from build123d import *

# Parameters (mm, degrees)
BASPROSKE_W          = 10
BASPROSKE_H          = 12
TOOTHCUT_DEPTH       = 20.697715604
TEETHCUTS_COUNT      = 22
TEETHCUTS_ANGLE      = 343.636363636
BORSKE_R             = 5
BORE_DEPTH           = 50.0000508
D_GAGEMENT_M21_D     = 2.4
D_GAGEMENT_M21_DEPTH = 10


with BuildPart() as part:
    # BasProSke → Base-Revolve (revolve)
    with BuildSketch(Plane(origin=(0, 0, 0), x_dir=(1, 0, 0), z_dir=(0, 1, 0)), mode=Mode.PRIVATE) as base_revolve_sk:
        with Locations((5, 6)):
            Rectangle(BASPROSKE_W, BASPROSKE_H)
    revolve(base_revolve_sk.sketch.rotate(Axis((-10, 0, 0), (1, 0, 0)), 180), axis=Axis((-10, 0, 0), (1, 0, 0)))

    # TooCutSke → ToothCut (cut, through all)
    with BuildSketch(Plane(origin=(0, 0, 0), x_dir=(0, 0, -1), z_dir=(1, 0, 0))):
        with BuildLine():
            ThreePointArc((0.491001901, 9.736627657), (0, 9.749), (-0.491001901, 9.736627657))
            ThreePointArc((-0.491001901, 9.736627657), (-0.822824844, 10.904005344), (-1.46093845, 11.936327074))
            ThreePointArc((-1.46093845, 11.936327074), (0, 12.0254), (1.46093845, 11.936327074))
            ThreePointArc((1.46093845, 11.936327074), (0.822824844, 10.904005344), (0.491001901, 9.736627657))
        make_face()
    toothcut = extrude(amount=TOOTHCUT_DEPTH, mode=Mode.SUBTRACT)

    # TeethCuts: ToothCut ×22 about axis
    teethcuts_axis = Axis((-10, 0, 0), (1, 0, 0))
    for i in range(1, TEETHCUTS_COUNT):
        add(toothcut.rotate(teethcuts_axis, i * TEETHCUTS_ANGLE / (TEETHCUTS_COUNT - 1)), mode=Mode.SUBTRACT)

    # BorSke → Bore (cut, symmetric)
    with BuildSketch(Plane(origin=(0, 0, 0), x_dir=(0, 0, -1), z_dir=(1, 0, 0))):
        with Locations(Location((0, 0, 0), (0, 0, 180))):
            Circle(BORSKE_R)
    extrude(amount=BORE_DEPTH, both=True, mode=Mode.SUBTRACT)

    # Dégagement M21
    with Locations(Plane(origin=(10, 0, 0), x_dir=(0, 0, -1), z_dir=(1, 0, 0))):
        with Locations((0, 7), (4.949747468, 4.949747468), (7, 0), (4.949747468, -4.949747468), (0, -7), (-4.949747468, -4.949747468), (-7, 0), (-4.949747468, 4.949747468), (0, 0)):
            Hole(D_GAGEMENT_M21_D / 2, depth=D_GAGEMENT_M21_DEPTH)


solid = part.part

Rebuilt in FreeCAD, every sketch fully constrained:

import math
import FreeCAD as App
import Part
import Sketcher
from FreeCAD import Vector
Q = App.Units.Quantity

doc = App.newDocument("Part")
params = doc.addObject("Spreadsheet::Sheet", "Params")
for row, (alias, value) in enumerate([
    ("sketch1_width", "10 mm"),
    ("sketch1_height", "12 mm"),
    ("revolution_angle", "360 deg"),
    ("sketch2_radius", "4.4 mm"),
    ("sketch3_diameter", "10 mm"),
    ("pocket2_length", "100.000102 mm"),
    ("sketch4_diameter", "2.4 mm"),
    ("hole_diameter", "2.4 mm"),
    ("hole_depth", "10 mm"),
], start=1):
    params.set(f"A{row}", alias)
    params.set(f"B{row}", "=" + value)
    params.setAlias(f"B{row}", alias)

body = doc.addObject("PartDesign::Body", "Body")

sketch1 = body.newObject("Sketcher::SketchObject", "Sketch")
sketch1.AttachmentSupport = (doc.getObject("XZ_Plane"), [""])
sketch1.MapMode = "FlatFace"
sketch1.addGeometry(Part.LineSegment(Vector(0, -12, 0), Vector(0, 0, 0)), False)
sketch1.addGeometry(Part.LineSegment(Vector(0, 0, 0), Vector(10, 0, 0)), False)
sketch1.addGeometry(Part.LineSegment(Vector(10, 0, 0), Vector(10, -12, 0)), False)
sketch1.addGeometry(Part.LineSegment(Vector(10, -12, 0), Vector(0, -12, 0)), False)
sketch1.addConstraint(Sketcher.Constraint("Coincident", 0, 2, 1, 1))
sketch1.addConstraint(Sketcher.Constraint("Coincident", 1, 2, 2, 1))
sketch1.addConstraint(Sketcher.Constraint("Coincident", 2, 2, 3, 1))
sketch1.addConstraint(Sketcher.Constraint("Coincident", 3, 2, 0, 1))
sketch1.addConstraint(Sketcher.Constraint("Vertical", 0))
sketch1.addConstraint(Sketcher.Constraint("Horizontal", 1))
sketch1.addConstraint(Sketcher.Constraint("Vertical", 2))
sketch1.addConstraint(Sketcher.Constraint("Horizontal", 3))
sketch1.addConstraint(Sketcher.Constraint("Coincident", 0, 2, -1, 1))
sketch1.addConstraint(Sketcher.Constraint("DistanceX", 1, 1, 1, 2, Q("10 mm")))
sketch1.addConstraint(Sketcher.Constraint("DistanceY", 0, 1, 0, 2, Q("12 mm")))
sketch1.setExpression("Constraints[9]", "Params.sketch1_width")
sketch1.setExpression("Constraints[10]", "Params.sketch1_height")
revolution = body.newObject("PartDesign::Revolution", "Revolution")
revolution.Profile = sketch1
revolution.ReferenceAxis = (sketch1, ["H_Axis"])
revolution.setExpression("Angle", "Params.revolution_angle")

sketch2 = body.newObject("Sketcher::SketchObject", "Sketch001")
sketch2.AttachmentSupport = (doc.getObject("YZ_Plane"), [""])
sketch2.MapMode = "FlatFace"
sketch2.addGeometry(Part.ArcOfCircle(Part.Circle(Vector(0, 0, 0), Vector(0, 0, 1), 9.749), math.radians(-2.886885), math.radians(2.886885)), False)
sketch2.addGeometry(Part.ArcOfCircle(Part.Circle(Vector(9.128784, -4.848814, 0), Vector(0, 0, 1), 4.4), math.radians(50.351348), math.radians(82.059402)), False)
sketch2.addGeometry(Part.ArcOfCircle(Part.Circle(Vector(0, 0, 0), Vector(0, 0, 1), 12.0254), math.radians(-6.977971), math.radians(6.977971)), False)
sketch2.addGeometry(Part.ArcOfCircle(Part.Circle(Vector(9.128784, 4.848814, 0), Vector(0, 0, 1), 4.4), math.radians(-82.059402), math.radians(-50.351348)), False)
sketch2.addConstraint(Sketcher.Constraint("Coincident", 0, 1, 1, 2))
sketch2.addConstraint(Sketcher.Constraint("Coincident", 1, 1, 2, 1))
sketch2.addConstraint(Sketcher.Constraint("Coincident", 2, 2, 3, 2))
sketch2.addConstraint(Sketcher.Constraint("Coincident", 3, 1, 0, 2))
sketch2.addConstraint(Sketcher.Constraint("Coincident", 0, 3, -1, 1))
sketch2.addConstraint(Sketcher.Constraint("Coincident", 2, 3, -1, 1))
sketch2.addConstraint(Sketcher.Constraint("Equal", 1, 3))
sketch2.addConstraint(Sketcher.Constraint("Symmetric", 1, 3, 3, 3, -1))
sketch2.addConstraint(Sketcher.Constraint("Radius", 1, Q("4.4 mm")))
sketch2.addConstraint(Sketcher.Constraint("Radius", 0, Q("9.749 mm")))
sketch2.addConstraint(Sketcher.Constraint("Radius", 2, Q("12.0254 mm")))
sketch2.addConstraint(Sketcher.Constraint("DistanceY", 0, 1, -1, 1, Q("0.491002 mm")))
sketch2.addConstraint(Sketcher.Constraint("DistanceX", 0, 1, 1, 1, Q("2.199699 mm")))
sketch2.setExpression("Constraints[8]", "Params.sketch2_radius")
pocket1 = body.newObject("PartDesign::Pocket", "Pocket")
pocket1.Profile = sketch2
pocket1.Type = "ThroughAll"
pocket1.Reversed = True
doc.recompute()

polarpattern = body.newObject("PartDesign::PolarPattern", "PolarPattern")
polarpattern.Originals = [pocket1]
polarpattern.Axis = (doc.getObject("X_Axis"), [""])
polarpattern.Angle = 360
polarpattern.Occurrences = 22
body.Tip = polarpattern

sketch3 = body.newObject("Sketcher::SketchObject", "Sketch002")
sketch3.AttachmentSupport = (doc.getObject("YZ_Plane"), [""])
sketch3.MapMode = "FlatFace"
sketch3.addGeometry(Part.Circle(Vector(0, 0, 0), Vector(0, 0, 1), 5), False)
sketch3.addConstraint(Sketcher.Constraint("Coincident", 0, 3, -1, 1))
sketch3.addConstraint(Sketcher.Constraint("Diameter", 0, Q("10 mm")))
sketch3.setExpression("Constraints[1]", "Params.sketch3_diameter")
pocket2 = body.newObject("PartDesign::Pocket", "Pocket001")
pocket2.Profile = sketch3
pocket2.setExpression("Length", "Params.pocket2_length")
pocket2.Midplane = True

sketch4 = body.newObject("Sketcher::SketchObject", "Sketch003")
sketch4.AttachmentSupport = (doc.getObject("YZ_Plane"), [""])
sketch4.MapMode = "FlatFace"
sketch4.AttachmentOffset = App.Placement(Vector(0, 0, 10), App.Rotation())
sketch4.addGeometry(Part.Circle(Vector(7, 0, 0), Vector(0, 0, 1), 1.2), False)
sketch4.addGeometry(Part.Circle(Vector(4.949747, -4.949747, 0), Vector(0, 0, 1), 1.2), False)
sketch4.addGeometry(Part.Circle(Vector(0, -7, 0), Vector(0, 0, 1), 1.2), False)
sketch4.addGeometry(Part.Circle(Vector(-4.949747, -4.949747, 0), Vector(0, 0, 1), 1.2), False)
sketch4.addGeometry(Part.Circle(Vector(-7, 0, 0), Vector(0, 0, 1), 1.2), False)
sketch4.addGeometry(Part.Circle(Vector(-4.949747, 4.949747, 0), Vector(0, 0, 1), 1.2), False)
sketch4.addGeometry(Part.Circle(Vector(0, 7, 0), Vector(0, 0, 1), 1.2), False)
sketch4.addGeometry(Part.Circle(Vector(4.949747, 4.949747, 0), Vector(0, 0, 1), 1.2), False)
sketch4.addGeometry(Part.Circle(Vector(0, 0, 0), Vector(0, 0, 1), 1.2), False)
sketch4.addConstraint(Sketcher.Constraint("Coincident", 8, 3, -1, 1))
sketch4.addConstraint(Sketcher.Constraint("Equal", 0, 1))
sketch4.addConstraint(Sketcher.Constraint("Equal", 1, 2))
sketch4.addConstraint(Sketcher.Constraint("Equal", 2, 3))
sketch4.addConstraint(Sketcher.Constraint("Equal", 3, 4))
sketch4.addConstraint(Sketcher.Constraint("Equal", 4, 5))
sketch4.addConstraint(Sketcher.Constraint("Equal", 5, 6))
sketch4.addConstraint(Sketcher.Constraint("Equal", 6, 7))
sketch4.addConstraint(Sketcher.Constraint("Equal", 7, 8))
sketch4.addConstraint(Sketcher.Constraint("Symmetric", 0, 3, 4, 3, -1, 1))
sketch4.addConstraint(Sketcher.Constraint("Symmetric", 1, 3, 5, 3, -1, 1))
sketch4.addConstraint(Sketcher.Constraint("Symmetric", 2, 3, 6, 3, -1, 1))
sketch4.addConstraint(Sketcher.Constraint("Symmetric", 3, 3, 7, 3, -1, 1))
sketch4.addConstraint(Sketcher.Constraint("Symmetric", 1, 3, 3, 3, -2))
sketch4.addConstraint(Sketcher.Constraint("PointOnObject", 0, 3, -1))
sketch4.addConstraint(Sketcher.Constraint("PointOnObject", 2, 3, -2))
sketch4.addConstraint(Sketcher.Constraint("Diameter", 0, Q("2.4 mm")))
sketch4.addConstraint(Sketcher.Constraint("DistanceX", -1, 1, 0, 3, Q("7 mm")))
sketch4.addConstraint(Sketcher.Constraint("DistanceY", 2, 3, -1, 1, Q("7 mm")))
sketch4.addConstraint(Sketcher.Constraint("DistanceX", -1, 1, 1, 3, Q("4.949747 mm")))
sketch4.addConstraint(Sketcher.Constraint("DistanceY", 1, 3, -1, 1, Q("4.949747 mm")))
sketch4.setExpression("Constraints[16]", "Params.sketch4_diameter")
doc.recompute()
hole = body.newObject("PartDesign::Hole", "Hole")
hole.Profile = sketch4
hole.ThreadType = "None"
hole.setExpression("Diameter", "Params.hole_diameter")
hole.DepthType = "Dimension"
hole.setExpression("Depth", "Params.hole_depth")
hole.DrillPoint = "Flat"

doc.recompute()
